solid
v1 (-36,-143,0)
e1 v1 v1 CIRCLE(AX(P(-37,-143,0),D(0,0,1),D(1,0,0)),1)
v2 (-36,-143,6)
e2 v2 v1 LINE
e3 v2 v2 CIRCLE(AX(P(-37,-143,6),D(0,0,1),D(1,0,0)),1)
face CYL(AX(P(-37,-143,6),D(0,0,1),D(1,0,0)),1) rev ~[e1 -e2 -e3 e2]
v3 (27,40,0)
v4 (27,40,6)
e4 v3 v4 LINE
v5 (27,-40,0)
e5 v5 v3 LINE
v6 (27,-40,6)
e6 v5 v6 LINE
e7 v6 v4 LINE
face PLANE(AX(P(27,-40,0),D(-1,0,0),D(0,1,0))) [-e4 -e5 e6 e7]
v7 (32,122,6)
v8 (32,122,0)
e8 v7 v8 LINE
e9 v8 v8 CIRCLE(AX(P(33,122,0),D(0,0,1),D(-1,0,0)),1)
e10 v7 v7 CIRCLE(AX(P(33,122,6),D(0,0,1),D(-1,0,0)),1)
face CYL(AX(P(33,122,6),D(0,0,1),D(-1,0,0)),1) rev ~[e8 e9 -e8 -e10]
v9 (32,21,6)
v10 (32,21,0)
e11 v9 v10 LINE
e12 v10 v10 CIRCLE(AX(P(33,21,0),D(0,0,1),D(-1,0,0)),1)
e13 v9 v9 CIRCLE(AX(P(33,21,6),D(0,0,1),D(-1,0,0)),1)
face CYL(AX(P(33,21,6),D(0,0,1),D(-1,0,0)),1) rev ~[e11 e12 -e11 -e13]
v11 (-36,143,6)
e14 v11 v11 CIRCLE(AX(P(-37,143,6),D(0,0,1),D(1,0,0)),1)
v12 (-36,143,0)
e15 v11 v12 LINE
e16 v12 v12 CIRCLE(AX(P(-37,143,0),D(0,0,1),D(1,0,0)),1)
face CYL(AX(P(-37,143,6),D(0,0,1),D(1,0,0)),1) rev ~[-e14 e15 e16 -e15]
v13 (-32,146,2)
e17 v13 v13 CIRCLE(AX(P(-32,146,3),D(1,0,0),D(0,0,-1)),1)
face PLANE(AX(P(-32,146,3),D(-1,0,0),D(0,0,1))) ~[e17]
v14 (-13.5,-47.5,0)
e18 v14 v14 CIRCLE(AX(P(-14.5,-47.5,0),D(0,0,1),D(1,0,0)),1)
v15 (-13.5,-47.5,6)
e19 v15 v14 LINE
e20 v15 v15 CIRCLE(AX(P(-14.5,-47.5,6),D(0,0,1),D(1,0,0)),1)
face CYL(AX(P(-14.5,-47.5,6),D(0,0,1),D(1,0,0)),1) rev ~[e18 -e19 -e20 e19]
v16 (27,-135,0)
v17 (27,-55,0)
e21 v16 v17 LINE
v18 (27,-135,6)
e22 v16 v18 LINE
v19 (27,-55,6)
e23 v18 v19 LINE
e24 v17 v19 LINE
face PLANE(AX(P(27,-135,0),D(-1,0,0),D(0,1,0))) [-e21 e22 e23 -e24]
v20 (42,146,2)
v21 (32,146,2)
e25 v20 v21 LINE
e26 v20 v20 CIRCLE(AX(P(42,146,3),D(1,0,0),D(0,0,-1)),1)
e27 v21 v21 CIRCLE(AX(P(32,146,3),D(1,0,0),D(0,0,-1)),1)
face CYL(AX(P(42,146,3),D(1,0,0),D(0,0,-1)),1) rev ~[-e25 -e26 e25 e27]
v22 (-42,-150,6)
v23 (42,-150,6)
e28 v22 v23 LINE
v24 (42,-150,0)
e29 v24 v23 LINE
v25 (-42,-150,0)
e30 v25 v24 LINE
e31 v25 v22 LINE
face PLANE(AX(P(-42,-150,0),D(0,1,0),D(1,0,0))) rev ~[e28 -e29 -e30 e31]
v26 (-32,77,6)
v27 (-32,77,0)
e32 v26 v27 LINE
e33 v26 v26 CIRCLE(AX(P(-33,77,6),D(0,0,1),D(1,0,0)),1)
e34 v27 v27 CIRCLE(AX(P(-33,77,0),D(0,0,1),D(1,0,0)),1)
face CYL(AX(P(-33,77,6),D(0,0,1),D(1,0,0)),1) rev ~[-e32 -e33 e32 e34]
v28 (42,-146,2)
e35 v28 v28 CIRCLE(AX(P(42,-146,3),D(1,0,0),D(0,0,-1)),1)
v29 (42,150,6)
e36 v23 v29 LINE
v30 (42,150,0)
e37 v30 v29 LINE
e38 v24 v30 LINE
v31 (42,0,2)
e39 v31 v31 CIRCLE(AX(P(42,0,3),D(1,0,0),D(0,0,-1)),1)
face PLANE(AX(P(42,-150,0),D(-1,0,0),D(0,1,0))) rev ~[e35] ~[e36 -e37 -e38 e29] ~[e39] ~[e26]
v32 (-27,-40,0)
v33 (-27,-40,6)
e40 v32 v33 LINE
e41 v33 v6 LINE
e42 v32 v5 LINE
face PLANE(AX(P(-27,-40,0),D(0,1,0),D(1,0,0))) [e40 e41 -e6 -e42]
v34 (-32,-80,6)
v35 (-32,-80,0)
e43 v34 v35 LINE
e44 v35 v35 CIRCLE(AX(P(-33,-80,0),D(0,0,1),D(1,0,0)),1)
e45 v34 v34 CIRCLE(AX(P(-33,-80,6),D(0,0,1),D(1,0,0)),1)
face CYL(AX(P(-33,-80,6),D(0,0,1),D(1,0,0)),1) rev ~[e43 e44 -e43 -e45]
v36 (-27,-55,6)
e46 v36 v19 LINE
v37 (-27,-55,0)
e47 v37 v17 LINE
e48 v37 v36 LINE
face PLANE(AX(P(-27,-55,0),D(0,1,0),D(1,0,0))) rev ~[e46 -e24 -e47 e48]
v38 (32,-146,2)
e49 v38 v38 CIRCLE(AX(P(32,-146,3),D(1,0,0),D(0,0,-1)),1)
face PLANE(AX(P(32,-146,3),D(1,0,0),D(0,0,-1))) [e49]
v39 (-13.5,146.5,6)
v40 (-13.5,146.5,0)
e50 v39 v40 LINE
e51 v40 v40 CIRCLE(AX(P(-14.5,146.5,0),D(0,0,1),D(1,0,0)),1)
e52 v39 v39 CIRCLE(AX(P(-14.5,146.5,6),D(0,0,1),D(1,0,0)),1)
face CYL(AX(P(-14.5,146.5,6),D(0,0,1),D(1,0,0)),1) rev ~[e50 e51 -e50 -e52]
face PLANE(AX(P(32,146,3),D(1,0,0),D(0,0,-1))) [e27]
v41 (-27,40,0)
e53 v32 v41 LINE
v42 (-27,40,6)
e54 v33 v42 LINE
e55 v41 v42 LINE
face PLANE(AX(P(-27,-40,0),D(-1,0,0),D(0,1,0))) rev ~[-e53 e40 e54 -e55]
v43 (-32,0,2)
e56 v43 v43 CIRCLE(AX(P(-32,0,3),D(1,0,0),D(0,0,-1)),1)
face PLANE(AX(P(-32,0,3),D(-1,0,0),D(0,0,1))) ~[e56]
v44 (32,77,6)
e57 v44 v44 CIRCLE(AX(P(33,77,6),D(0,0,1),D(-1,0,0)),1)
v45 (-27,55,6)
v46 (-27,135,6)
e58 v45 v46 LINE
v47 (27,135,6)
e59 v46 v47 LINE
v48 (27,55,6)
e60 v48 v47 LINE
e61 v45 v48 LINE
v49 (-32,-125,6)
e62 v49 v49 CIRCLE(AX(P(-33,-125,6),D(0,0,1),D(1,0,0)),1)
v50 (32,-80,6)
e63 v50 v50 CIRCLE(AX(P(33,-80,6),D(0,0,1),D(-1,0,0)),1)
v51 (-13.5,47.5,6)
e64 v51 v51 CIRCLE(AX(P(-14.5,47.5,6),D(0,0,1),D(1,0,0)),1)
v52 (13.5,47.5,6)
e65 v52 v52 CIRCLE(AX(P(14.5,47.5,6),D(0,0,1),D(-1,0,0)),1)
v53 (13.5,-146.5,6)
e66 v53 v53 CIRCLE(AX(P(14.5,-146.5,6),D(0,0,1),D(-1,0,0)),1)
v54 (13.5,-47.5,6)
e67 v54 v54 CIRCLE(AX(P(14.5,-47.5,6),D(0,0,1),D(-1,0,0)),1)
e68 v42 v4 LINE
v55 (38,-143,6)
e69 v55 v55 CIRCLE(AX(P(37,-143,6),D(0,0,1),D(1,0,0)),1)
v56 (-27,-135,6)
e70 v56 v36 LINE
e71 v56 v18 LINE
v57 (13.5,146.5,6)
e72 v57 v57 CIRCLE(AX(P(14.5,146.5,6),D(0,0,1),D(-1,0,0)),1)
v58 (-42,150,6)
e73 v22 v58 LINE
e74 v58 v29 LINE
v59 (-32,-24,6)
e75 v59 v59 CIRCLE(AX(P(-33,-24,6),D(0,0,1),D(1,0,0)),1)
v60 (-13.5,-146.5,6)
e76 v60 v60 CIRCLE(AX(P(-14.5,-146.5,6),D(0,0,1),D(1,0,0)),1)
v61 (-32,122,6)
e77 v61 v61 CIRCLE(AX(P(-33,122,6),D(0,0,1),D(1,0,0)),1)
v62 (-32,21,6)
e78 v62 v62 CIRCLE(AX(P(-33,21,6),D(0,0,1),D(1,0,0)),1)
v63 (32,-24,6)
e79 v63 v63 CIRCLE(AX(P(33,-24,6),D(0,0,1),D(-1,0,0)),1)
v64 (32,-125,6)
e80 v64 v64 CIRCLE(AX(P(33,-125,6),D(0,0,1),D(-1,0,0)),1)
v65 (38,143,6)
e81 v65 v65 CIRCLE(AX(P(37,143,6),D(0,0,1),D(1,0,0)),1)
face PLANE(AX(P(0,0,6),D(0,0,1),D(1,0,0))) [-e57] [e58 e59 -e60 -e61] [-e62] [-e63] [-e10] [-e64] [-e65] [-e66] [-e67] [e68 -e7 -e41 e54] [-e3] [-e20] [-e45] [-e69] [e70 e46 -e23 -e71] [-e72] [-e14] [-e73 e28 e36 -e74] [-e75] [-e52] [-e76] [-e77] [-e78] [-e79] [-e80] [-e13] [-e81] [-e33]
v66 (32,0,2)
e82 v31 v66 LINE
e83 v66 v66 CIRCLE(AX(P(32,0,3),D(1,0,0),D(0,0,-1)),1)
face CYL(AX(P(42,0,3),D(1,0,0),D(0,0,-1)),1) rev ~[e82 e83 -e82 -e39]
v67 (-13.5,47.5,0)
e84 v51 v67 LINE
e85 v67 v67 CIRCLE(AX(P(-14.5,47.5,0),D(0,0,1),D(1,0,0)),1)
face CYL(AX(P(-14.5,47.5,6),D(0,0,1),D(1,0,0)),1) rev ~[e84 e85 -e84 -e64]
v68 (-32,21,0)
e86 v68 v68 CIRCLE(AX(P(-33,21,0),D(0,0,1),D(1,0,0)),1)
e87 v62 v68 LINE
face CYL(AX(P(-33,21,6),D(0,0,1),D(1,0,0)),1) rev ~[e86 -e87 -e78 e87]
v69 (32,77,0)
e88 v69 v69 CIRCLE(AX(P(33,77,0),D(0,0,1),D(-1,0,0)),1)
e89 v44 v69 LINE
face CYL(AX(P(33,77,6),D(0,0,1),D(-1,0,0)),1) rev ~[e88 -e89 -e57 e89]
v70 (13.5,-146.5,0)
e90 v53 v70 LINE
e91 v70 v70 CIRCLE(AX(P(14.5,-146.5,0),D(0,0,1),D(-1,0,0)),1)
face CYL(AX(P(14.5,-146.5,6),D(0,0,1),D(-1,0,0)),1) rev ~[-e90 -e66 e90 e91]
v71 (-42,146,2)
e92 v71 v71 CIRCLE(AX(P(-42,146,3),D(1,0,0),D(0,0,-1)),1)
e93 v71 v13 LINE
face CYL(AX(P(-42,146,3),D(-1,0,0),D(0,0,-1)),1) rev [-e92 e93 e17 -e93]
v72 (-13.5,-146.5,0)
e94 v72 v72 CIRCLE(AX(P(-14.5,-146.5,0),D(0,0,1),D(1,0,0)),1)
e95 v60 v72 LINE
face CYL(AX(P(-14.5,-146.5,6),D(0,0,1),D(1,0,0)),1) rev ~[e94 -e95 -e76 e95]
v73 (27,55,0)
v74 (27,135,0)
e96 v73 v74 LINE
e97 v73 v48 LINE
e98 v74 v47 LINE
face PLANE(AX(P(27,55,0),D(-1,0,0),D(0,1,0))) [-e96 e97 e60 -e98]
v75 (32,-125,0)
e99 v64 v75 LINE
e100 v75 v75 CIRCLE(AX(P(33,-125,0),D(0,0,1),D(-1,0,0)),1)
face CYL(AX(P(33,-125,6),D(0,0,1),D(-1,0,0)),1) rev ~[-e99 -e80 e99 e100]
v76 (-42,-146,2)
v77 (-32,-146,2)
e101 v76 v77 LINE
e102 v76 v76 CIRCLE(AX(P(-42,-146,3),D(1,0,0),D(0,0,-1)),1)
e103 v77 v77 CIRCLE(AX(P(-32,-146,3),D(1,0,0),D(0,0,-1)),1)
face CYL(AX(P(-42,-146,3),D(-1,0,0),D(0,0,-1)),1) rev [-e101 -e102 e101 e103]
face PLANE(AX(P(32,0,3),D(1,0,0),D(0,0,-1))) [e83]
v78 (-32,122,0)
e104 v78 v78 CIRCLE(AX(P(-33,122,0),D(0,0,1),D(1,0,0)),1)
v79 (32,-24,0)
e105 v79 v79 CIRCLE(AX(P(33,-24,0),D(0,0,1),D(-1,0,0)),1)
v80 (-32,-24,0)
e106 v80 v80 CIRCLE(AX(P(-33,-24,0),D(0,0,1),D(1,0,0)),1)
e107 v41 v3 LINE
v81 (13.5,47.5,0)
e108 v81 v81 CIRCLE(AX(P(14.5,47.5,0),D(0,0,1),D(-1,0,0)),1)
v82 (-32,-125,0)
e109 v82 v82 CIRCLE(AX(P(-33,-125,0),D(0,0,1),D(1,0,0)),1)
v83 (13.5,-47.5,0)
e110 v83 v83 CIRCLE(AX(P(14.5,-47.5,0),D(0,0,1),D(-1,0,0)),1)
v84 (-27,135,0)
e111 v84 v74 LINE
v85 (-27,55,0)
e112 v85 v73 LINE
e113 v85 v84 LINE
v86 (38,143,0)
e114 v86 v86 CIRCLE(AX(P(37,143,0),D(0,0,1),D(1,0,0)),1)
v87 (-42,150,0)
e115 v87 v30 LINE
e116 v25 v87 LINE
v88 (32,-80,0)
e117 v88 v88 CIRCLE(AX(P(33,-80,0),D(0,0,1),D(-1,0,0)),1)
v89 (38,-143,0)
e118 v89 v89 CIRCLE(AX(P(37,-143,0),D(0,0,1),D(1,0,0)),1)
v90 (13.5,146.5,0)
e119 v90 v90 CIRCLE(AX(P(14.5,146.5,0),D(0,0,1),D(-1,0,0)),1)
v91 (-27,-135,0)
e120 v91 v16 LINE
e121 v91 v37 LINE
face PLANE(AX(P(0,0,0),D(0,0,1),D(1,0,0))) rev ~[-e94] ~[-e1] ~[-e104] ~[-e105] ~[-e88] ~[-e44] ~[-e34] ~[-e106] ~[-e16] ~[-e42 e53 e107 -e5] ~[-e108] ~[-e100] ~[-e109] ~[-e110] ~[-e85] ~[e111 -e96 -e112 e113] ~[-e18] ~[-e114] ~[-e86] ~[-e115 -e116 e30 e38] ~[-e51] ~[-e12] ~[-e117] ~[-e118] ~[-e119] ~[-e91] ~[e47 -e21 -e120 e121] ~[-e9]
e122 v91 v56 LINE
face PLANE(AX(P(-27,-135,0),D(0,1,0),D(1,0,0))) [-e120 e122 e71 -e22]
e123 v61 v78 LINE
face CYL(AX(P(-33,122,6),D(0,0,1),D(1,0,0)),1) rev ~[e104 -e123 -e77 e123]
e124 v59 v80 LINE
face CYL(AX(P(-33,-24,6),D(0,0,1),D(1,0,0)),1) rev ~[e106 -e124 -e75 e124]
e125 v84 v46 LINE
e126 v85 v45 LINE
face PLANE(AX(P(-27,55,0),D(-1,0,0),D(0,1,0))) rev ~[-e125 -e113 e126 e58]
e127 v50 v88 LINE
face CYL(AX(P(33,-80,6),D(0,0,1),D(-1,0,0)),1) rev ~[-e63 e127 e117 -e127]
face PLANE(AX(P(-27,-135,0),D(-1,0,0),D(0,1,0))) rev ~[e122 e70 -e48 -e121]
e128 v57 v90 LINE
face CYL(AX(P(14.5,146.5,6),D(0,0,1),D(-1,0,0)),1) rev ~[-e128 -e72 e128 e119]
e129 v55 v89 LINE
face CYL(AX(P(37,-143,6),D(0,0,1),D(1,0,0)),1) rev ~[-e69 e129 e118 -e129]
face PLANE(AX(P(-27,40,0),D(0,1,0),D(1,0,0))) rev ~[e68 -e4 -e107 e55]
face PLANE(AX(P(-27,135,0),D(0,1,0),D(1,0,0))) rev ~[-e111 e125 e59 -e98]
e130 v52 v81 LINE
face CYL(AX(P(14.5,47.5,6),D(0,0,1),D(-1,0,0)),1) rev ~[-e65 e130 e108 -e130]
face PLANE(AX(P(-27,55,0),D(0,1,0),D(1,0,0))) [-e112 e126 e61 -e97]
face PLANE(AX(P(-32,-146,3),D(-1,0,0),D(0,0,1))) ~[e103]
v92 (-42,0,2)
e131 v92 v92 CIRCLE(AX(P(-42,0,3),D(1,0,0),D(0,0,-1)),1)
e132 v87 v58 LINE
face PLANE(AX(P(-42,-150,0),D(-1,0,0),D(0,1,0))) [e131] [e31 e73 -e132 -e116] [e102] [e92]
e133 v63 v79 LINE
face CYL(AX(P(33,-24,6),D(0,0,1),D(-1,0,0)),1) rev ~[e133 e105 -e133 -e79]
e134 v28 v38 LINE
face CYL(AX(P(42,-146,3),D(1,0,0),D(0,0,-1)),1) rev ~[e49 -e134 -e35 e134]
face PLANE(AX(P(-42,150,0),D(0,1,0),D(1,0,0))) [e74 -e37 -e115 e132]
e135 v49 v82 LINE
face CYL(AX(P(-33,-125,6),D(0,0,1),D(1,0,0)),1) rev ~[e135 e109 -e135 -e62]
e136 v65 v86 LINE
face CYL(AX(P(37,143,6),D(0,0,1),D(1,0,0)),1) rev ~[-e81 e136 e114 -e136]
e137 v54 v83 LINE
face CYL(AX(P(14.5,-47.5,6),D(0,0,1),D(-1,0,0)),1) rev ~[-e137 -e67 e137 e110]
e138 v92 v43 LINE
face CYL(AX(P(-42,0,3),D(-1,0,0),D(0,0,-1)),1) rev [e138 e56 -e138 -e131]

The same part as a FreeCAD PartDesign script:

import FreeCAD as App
import Part
import Sketcher
Q = App.Units.Quantity

doc = App.newDocument("Part")
body = doc.addObject("PartDesign::Body", "Body")

# Sketch on XY plane
sketch1 = body.newObject("Sketcher::SketchObject", "Sketch")
sketch1.AttachmentSupport = (doc.getObject("XY_Plane"), [""])
sketch1.MapMode = "FlatFace"
sketch1.addGeometry([
    Part.LineSegment(App.Vector(-42, 150, 0), App.Vector(-42, -150, 0)),  # 0
    Part.LineSegment(App.Vector(-42, -150, 0), App.Vector(42, -150, 0)),  # 1
    Part.LineSegment(App.Vector(42, -150, 0), App.Vector(42, 150, 0)),  # 2
    Part.LineSegment(App.Vector(42, 150, 0), App.Vector(-42, 150, 0)),  # 3
    Part.LineSegment(App.Vector(27, -135, 0), App.Vector(-27, -135, 0)),  # 4
    Part.LineSegment(App.Vector(-27, -135, 0), App.Vector(-27, -55, 0)),  # 5
    Part.LineSegment(App.Vector(-27, -55, 0), App.Vector(27, -55, 0)),  # 6
    Part.LineSegment(App.Vector(27, -55, 0), App.Vector(27, -135, 0)),  # 7
    Part.LineSegment(App.Vector(27, -40, 0), App.Vector(-27, -40, 0)),  # 8
    Part.LineSegment(App.Vector(-27, -40, 0), App.Vector(-27, 40, 0)),  # 9
    Part.LineSegment(App.Vector(-27, 40, 0), App.Vector(27, 40, 0)),  # 10
    Part.LineSegment(App.Vector(27, 40, 0), App.Vector(27, -40, 0)),  # 11
    Part.LineSegment(App.Vector(27, 55, 0), App.Vector(-27, 55, 0)),  # 12
    Part.LineSegment(App.Vector(-27, 55, 0), App.Vector(-27, 135, 0)),  # 13
    Part.LineSegment(App.Vector(-27, 135, 0), App.Vector(27, 135, 0)),  # 14
    Part.LineSegment(App.Vector(27, 135, 0), App.Vector(27, 55, 0)),  # 15
], False)
sketch1.addConstraint([
    Sketcher.Constraint("Coincident", 0, 2, 1, 1),
    Sketcher.Constraint("Coincident", 1, 2, 2, 1),
    Sketcher.Constraint("Coincident", 2, 2, 3, 1),
    Sketcher.Constraint("Coincident", 3, 2, 0, 1),
    Sketcher.Constraint("Coincident", 4, 2, 5, 1),
    Sketcher.Constraint("Coincident", 5, 2, 6, 1),
    Sketcher.Constraint("Coincident", 6, 2, 7, 1),
    Sketcher.Constraint("Coincident", 7, 2, 4, 1),
    Sketcher.Constraint("Coincident", 8, 2, 9, 1),
    Sketcher.Constraint("Coincident", 9, 2, 10, 1),
    Sketcher.Constraint("Coincident", 10, 2, 11, 1),
    Sketcher.Constraint("Coincident", 11, 2, 8, 1),
    Sketcher.Constraint("Coincident", 12, 2, 13, 1),
    Sketcher.Constraint("Coincident", 13, 2, 14, 1),
    Sketcher.Constraint("Coincident", 14, 2, 15, 1),
    Sketcher.Constraint("Coincident", 15, 2, 12, 1),
    Sketcher.Constraint("Vertical", 0),
    Sketcher.Constraint("Horizontal", 1),
    Sketcher.Constraint("Vertical", 2),
    Sketcher.Constraint("Horizontal", 3),
    Sketcher.Constraint("Horizontal", 4),
    Sketcher.Constraint("Vertical", 5),
    Sketcher.Constraint("Horizontal", 6),
    Sketcher.Constraint("Vertical", 7),
    Sketcher.Constraint("Horizontal", 8),
    Sketcher.Constraint("Vertical", 9),
    Sketcher.Constraint("Horizontal", 10),
    Sketcher.Constraint("Vertical", 11),
    Sketcher.Constraint("Horizontal", 12),
    Sketcher.Constraint("Vertical", 13),
    Sketcher.Constraint("Horizontal", 14),
    Sketcher.Constraint("Vertical", 15),
    Sketcher.Constraint("Symmetric", 0, 2, 2, 2, -1, 1),
    Sketcher.Constraint("Symmetric", 8, 2, 10, 2, -1, 1),
    Sketcher.Constraint("Symmetric", 6, 2, 12, 2, -1, 1),
    Sketcher.Constraint("Symmetric", 4, 2, 14, 2, -1, 1),
    Sketcher.Constraint("Vertical", 5, 2, 8, 2),
    Sketcher.Constraint("Vertical", 7, 2, 10, 2),
    Sketcher.Constraint("Equal", 7, 9),
    Sketcher.Constraint("DistanceX", 1, 1, 1, 2, Q("84 mm")),
    Sketcher.Constraint("DistanceX", 4, 2, 4, 1, Q("54 mm")),
    Sketcher.Constraint("DistanceY", 0, 2, 0, 1, Q("300 mm")),
    Sketcher.Constraint("DistanceY", 5, 1, 5, 2, Q("80 mm")),
    Sketcher.Constraint("DistanceY", 4, 2, -1, 1, Q("135 mm")),
])
pad1 = body.newObject("PartDesign::Pad", "Pad")
pad1.Profile = sketch1
pad1.Length = 6

# Sketch on YZ plane
sketch2 = body.newObject("Sketcher::SketchObject", "Sketch001")
sketch2.AttachmentSupport = (doc.getObject("YZ_Plane"), [""])
sketch2.MapMode = "FlatFace"
sketch2.AttachmentOffset = App.Placement(App.Vector(0, 0, 42), App.Rotation())
sketch2.addGeometry([
    Part.Circle(App.Vector(146, 3, 0), App.Vector(0, 0, 1), 1),
    Part.Circle(App.Vector(0, 3, 0), App.Vector(0, 0, 1), 1),
    Part.Circle(App.Vector(-146, 3, 0), App.Vector(0, 0, 1), 1),
    Part.Circle(App.Vector(-292, 3, 0), App.Vector(0, 0, 1), 1),
], False)
sketch2.addConstraint([
    Sketcher.Constraint("Equal", 0, 1),
    Sketcher.Constraint("Equal", 1, 2),
    Sketcher.Constraint("Equal", 2, 3),
    Sketcher.Constraint("Symmetric", 0, 3, 2, 3, -2),
    Sketcher.Constraint("PointOnObject", 1, 3, -2),
    Sketcher.Constraint("Horizontal", 0, 3, 1, 3),
    Sketcher.Constraint("Horizontal", 2, 3, 3, 3),
    Sketcher.Constraint("Diameter", 0, Q("2 mm")),
    Sketcher.Constraint("DistanceX", -1, 1, 0, 3, Q("146 mm")),
    Sketcher.Constraint("DistanceY", -1, 1, 0, 3, Q("3 mm")),
    Sketcher.Constraint("DistanceX", 3, 3, -1, 1, Q("292 mm")),
])
pocket1 = body.newObject("PartDesign::Pocket", "Pocket")
pocket1.Profile = sketch2
pocket1.Length = 10
doc.recompute()

mirrored = body.newObject("PartDesign::Mirrored", "Mirrored")
mirrored.Originals = [pocket1]
mirrored.MirrorPlane = (doc.getObject("YZ_Plane"), [""])
body.Tip = mirrored

# Sketch on XY plane
sketch3 = body.newObject("Sketcher::SketchObject", "Sketch002")
sketch3.AttachmentSupport = (doc.getObject("XY_Plane"), [""])
sketch3.MapMode = "FlatFace"
sketch3.AttachmentOffset = App.Placement(App.Vector(0, 0, 6), App.Rotation())
sketch3.addGeometry([
    Part.Circle(App.Vector(-14.5, 146.5, 0), App.Vector(0, 0, 1), 1),  # 0
    Part.Circle(App.Vector(-33, 122, 0), App.Vector(0, 0, 1), 1),  # 1
    Part.Circle(App.Vector(-14.5, 47.5, 0), App.Vector(0, 0, 1), 1),  # 2
    Part.Circle(App.Vector(-14.5, -47.5, 0), App.Vector(0, 0, 1), 1),  # 3
    Part.Circle(App.Vector(-14.5, -146.5, 0), App.Vector(0, 0, 1), 1),  # 4
    Part.Circle(App.Vector(-33, -125, 0), App.Vector(0, 0, 1), 1),  # 5
    Part.Circle(App.Vector(-33, 77, 0), App.Vector(0, 0, 1), 1),  # 6
    Part.Circle(App.Vector(-33, -80, 0), App.Vector(0, 0, 1), 1),  # 7
    Part.Circle(App.Vector(-33, 21, 0), App.Vector(0, 0, 1), 1),  # 8
    Part.Circle(App.Vector(-33, -24, 0), App.Vector(0, 0, 1), 1),  # 9
    Part.Circle(App.Vector(33, -24, 0), App.Vector(0, 0, 1), 1),  # 10
    Part.Circle(App.Vector(33, 21, 0), App.Vector(0, 0, 1), 1),  # 11
    Part.Circle(App.Vector(33, -80, 0), App.Vector(0, 0, 1), 1),  # 12
    Part.Circle(App.Vector(33, 77, 0), App.Vector(0, 0, 1), 1),  # 13
    Part.Circle(App.Vector(33, -125, 0), App.Vector(0, 0, 1), 1),  # 14
    Part.Circle(App.Vector(14.5, -146.5, 0), App.Vector(0, 0, 1), 1),  # 15
    Part.Circle(App.Vector(14.5, -47.5, 0), App.Vector(0, 0, 1), 1),  # 16
    Part.Circle(App.Vector(14.5, 47.5, 0), App.Vector(0, 0, 1), 1),  # 17
    Part.Circle(App.Vector(33, 122, 0), App.Vector(0, 0, 1), 1),  # 18
    Part.Circle(App.Vector(14.5, 146.5, 0), App.Vector(0, 0, 1), 1),  # 19
], False)
sketch3.addConstraint([
    Sketcher.Constraint("Equal", 0, 1),
    Sketcher.Constraint("Equal", 1, 2),
    Sketcher.Constraint("Equal", 2, 3),
    Sketcher.Constraint("Equal", 3, 4),
    Sketcher.Constraint("Equal", 4, 5),
    Sketcher.Constraint("Equal", 5, 6),
    Sketcher.Constraint("Equal", 6, 7),
    Sketcher.Constraint("Equal", 7, 8),
    Sketcher.Constraint("Equal", 8, 9),
    Sketcher.Constraint("Equal", 9, 10),
    Sketcher.Constraint("Equal", 10, 11),
    Sketcher.Constraint("Equal", 11, 12),
    Sketcher.Constraint("Equal", 12, 13),
    Sketcher.Constraint("Equal", 13, 14),
    Sketcher.Constraint("Equal", 14, 15),
    Sketcher.Constraint("Equal", 15, 16),
    Sketcher.Constraint("Equal", 16, 17),
    Sketcher.Constraint("Equal", 17, 18),
    Sketcher.Constraint("Equal", 18, 19),
    Sketcher.Constraint("Symmetric", 0, 3, 15, 3, -1, 1),
    Sketcher.Constraint("Symmetric", 2, 3, 16, 3, -1, 1),
    Sketcher.Constraint("Symmetric", 3, 3, 17, 3, -1, 1),
    Sketcher.Constraint("Symmetric", 4, 3, 19, 3, -1, 1),
    Sketcher.Constraint("Symmetric", 9, 3, 10, 3, -2),
    Sketcher.Constraint("Symmetric", 8, 3, 11, 3, -2),
    Sketcher.Constraint("Symmetric", 7, 3, 12, 3, -2),
    Sketcher.Constraint("Symmetric", 6, 3, 13, 3, -2),
    Sketcher.Constraint("Symmetric", 5, 3, 14, 3, -2),
    Sketcher.Constraint("Symmetric", 4, 3, 15, 3, -2),
    Sketcher.Constraint("Symmetric", 3, 3, 16, 3, -2),
    Sketcher.Constraint("Symmetric", 1, 3, 18, 3, -2),
    Sketcher.Constraint("Vertical", 0, 3, 2, 3),
    Sketcher.Constraint("Vertical", 1, 3, 5, 3),
    Sketcher.Constraint("Vertical", 5, 3, 6, 3),
    Sketcher.Constraint("Vertical", 6, 3, 7, 3),
    Sketcher.Constraint("Vertical", 7, 3, 8, 3),
    Sketcher.Constraint("Vertical", 8, 3, 9, 3),
    Sketcher.Constraint("Diameter", 0, Q("2 mm")),
    Sketcher.Constraint("DistanceX", 1, 3, -1, 1, Q("33 mm")),
    Sketcher.Constraint("DistanceY", -1, 1, 1, 3, Q("122 mm")),
    Sketcher.Constraint("DistanceY", 5, 3, -1, 1, Q("125 mm")),
    Sketcher.Constraint("DistanceY", -1, 1, 6, 3, Q("77 mm")),
    Sketcher.Constraint("DistanceY", 7, 3, -1, 1, Q("80 mm")),
    Sketcher.Constraint("DistanceY", -1, 1, 8, 3, Q("21 mm")),
    Sketcher.Constraint("DistanceY", 9, 3, -1, 1, Q("24 mm")),
    Sketcher.Constraint("DistanceY", 2, 3, 0, 3, Q("99 mm")),
    Sketcher.Constraint("DistanceY", 3, 3, 2, 3, Q("95 mm")),
    Sketcher.Constraint("DistanceX", 4, 3, 15, 3, Q("29 mm")),
])
pocket2 = body.newObject("PartDesign::Pocket", "Pocket001")
pocket2.Profile = sketch3
pocket2.Length = 10

# Sketch on XY plane
sketch4 = body.newObject("Sketcher::SketchObject", "Sketch003")
sketch4.AttachmentSupport = (doc.getObject("XY_Plane"), [""])
sketch4.MapMode = "FlatFace"
sketch4.AttachmentOffset = App.Placement(App.Vector(0, 0, 6), App.Rotation())
sketch4.addGeometry([
    Part.Circle(App.Vector(-37, -143, 0), App.Vector(0, 0, 1), 1),
    Part.Circle(App.Vector(37, -143, 0), App.Vector(0, 0, 1), 1),
    Part.Circle(App.Vector(-37, 143, 0), App.Vector(0, 0, 1), 1),
    Part.Circle(App.Vector(37, 143, 0), App.Vector(0, 0, 1), 1),
], False)
sketch4.addConstraint([
    Sketcher.Constraint("Equal", 0, 1),
    Sketcher.Constraint("Equal", 1, 2),
    Sketcher.Constraint("Equal", 2, 3),
    Sketcher.Constraint("Symmetric", 1, 3, 2, 3, -1, 1),
    Sketcher.Constraint("Symmetric", 0, 3, 3, 3, -1, 1),
    Sketcher.Constraint("Symmetric", 0, 3, 1, 3, -2),
    Sketcher.Constraint("Diameter", 0, Q("2 mm")),
    Sketcher.Constraint("DistanceX", 0, 3, -1, 1, Q("37 mm")),
    Sketcher.Constraint("DistanceY", 0, 3, -1, 1, Q("143 mm")),
])
pocket3 = body.newObject("PartDesign::Pocket", "Pocket002")
pocket3.Profile = sketch4
pocket3.Length = 10

doc.recompute()
